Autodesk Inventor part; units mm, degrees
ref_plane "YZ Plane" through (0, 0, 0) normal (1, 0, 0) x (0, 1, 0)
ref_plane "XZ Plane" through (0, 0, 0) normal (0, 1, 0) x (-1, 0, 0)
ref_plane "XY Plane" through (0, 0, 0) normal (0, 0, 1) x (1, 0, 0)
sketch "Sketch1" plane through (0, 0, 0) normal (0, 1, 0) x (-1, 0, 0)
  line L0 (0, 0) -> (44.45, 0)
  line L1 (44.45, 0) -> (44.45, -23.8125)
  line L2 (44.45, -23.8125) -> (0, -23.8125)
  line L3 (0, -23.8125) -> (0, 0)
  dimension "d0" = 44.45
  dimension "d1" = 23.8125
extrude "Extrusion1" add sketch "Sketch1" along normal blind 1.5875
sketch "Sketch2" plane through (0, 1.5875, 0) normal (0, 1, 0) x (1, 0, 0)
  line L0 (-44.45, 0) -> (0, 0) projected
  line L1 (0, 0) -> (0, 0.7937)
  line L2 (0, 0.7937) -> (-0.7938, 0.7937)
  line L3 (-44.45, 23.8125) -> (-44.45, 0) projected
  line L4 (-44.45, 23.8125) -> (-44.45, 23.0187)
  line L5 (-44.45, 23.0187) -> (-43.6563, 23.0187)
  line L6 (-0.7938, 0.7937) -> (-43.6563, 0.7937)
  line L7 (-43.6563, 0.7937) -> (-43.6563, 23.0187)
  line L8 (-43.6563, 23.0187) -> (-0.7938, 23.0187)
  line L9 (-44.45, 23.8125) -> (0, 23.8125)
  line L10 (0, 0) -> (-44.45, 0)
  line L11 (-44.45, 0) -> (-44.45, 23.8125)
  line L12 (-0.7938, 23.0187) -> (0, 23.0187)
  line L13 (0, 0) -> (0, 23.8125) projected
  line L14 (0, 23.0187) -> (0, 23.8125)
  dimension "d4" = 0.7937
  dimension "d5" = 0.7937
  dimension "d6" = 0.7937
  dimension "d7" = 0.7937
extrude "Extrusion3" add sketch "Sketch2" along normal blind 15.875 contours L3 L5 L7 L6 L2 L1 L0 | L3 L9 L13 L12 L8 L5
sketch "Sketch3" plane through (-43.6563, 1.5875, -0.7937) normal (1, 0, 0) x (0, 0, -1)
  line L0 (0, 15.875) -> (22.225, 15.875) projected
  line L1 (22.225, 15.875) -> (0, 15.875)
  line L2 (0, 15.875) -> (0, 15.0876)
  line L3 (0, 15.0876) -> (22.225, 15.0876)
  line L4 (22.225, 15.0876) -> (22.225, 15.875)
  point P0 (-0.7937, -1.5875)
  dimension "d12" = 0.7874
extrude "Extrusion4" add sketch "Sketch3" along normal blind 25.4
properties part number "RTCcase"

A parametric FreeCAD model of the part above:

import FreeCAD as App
import Part
import Sketcher

V = App.Vector
Q = App.Units.Quantity

doc = App.newDocument("Part")
body = doc.addObject("PartDesign::Body", "Body")

# Sketch on XZ plane
sketch1 = body.newObject("Sketcher::SketchObject", "Sketch")
sketch1.AttachmentSupport = (doc.getObject("XZ_Plane"), [""])
sketch1.MapMode = "FlatFace"
sketch1.addGeometry([
    Part.LineSegment(V(-44.45, 0, 0), V(0, 0, 0)),
    Part.LineSegment(V(0, 0, 0), V(0, -23.8125, 0)),
    Part.LineSegment(V(0, -23.8125, 0), V(-44.45, -23.8125, 0)),
    Part.LineSegment(V(-44.45, -23.8125, 0), V(-44.45, 0, 0)),
], False)
sketch1.addConstraint([
    Sketcher.Constraint("Coincident", 0, 2, 1, 1),
    Sketcher.Constraint("Coincident", 1, 2, 2, 1),
    Sketcher.Constraint("Coincident", 2, 2, 3, 1),
    Sketcher.Constraint("Coincident", 3, 2, 0, 1),
    Sketcher.Constraint("Horizontal", 0),
    Sketcher.Constraint("Vertical", 1),
    Sketcher.Constraint("Horizontal", 2),
    Sketcher.Constraint("Vertical", 3),
    Sketcher.Constraint("Coincident", 0, 2, -1, 1),
    Sketcher.Constraint("DistanceX", 0, 1, 0, 2, Q("1.75 in")),
    Sketcher.Constraint("DistanceY", 1, 2, 1, 1, Q("0.9375 in")),
])
pad1 = body.newObject("PartDesign::Pad", "Pad")
pad1.Profile = sketch1
pad1.Length = Q("0.0625 in")
pad1.Reversed = True

# Sketch on XZ plane
sketch2 = body.newObject("Sketcher::SketchObject", "Sketch001")
sketch2.AttachmentSupport = (doc.getObject("XZ_Plane"), [""])
sketch2.MapMode = "FlatFace"
sketch2.AttachmentOffset = App.Placement(V(0, 0, -0.0625 * 25.4), App.Rotation())
sketch2.addGeometry([
    Part.LineSegment(V(-44.45, 0, 0), V(0, 0, 0)),  # 0
    Part.LineSegment(V(0, 0, 0), V(0, -0.7937, 0)),  # 1
    Part.LineSegment(V(0, -0.7937, 0), V(-43.6563, -0.7937, 0)),  # 2
    Part.LineSegment(V(-43.6563, -0.7937, 0), V(-43.6563, -23.0187, 0)),  # 3
    Part.LineSegment(V(-43.6563, -23.0187, 0), V(0, -23.0187, 0)),  # 4
    Part.LineSegment(V(0, -23.0187, 0), V(0, -23.8125, 0)),  # 5
    Part.LineSegment(V(0, -23.8125, 0), V(-44.45, -23.8125, 0)),  # 6
    Part.LineSegment(V(-44.45, -23.8125, 0), V(-44.45, 0, 0)),  # 7
], False)
sketch2.addConstraint([
    Sketcher.Constraint("Coincident", 0, 2, 1, 1),
    Sketcher.Constraint("Coincident", 1, 2, 2, 1),
    Sketcher.Constraint("Coincident", 2, 2, 3, 1),
    Sketcher.Constraint("Coincident", 3, 2, 4, 1),
    Sketcher.Constraint("Coincident", 4, 2, 5, 1),
    Sketcher.Constraint("Coincident", 5, 2, 6, 1),
    Sketcher.Constraint("Coincident", 6, 2, 7, 1),
    Sketcher.Constraint("Coincident", 7, 2, 0, 1),
    Sketcher.Constraint("Horizontal", 0),
    Sketcher.Constraint("Vertical", 1),
    Sketcher.Constraint("Horizontal", 2),
    Sketcher.Constraint("Vertical", 3),
    Sketcher.Constraint("Horizontal", 4),
    Sketcher.Constraint("Vertical", 5),
    Sketcher.Constraint("Horizontal", 6),
    Sketcher.Constraint("Vertical", 7),
    Sketcher.Constraint("Coincident", 0, 2, -1, 1),
    Sketcher.Constraint("PointOnObject", 4, 2, -2),
    Sketcher.Constraint("Equal", 1, 5),
    Sketcher.Constraint("DistanceY", 1, 2, 1, 1, Q("0.031248 in")),
    Sketcher.Constraint("DistanceX", 6, 2, 3, 2, Q("0.031248 in")),
    Sketcher.Constraint("DistanceX", 0, 1, 0, 2, Q("1.75 in")),
    Sketcher.Constraint("DistanceY", 3, 2, 3, 1, Q("0.875 in")),
])
pad2 = body.newObject("PartDesign::Pad", "Pad001")
pad2.Profile = sketch2
pad2.Length = Q("0.625 in")
pad2.Reversed = True

# Sketch on YZ plane
sketch3 = body.newObject("Sketcher::SketchObject", "Sketch002")
sketch3.AttachmentSupport = (doc.getObject("YZ_Plane"), [""])
sketch3.MapMode = "FlatFace"
sketch3.AttachmentOffset = App.Placement(V(0, 0, -1.718752 * 25.4), App.Rotation())
sketch3.addGeometry([
    Part.LineSegment(V(17.4625, -23.0187, 0), V(17.4625, -0.7937, 0)),
    Part.LineSegment(V(17.4625, -0.7937, 0), V(16.6751, -0.7937, 0)),
    Part.LineSegment(V(16.6751, -0.7937, 0), V(16.6751, -23.0187, 0)),
    Part.LineSegment(V(16.6751, -23.0187, 0), V(17.4625, -23.0187, 0)),
], False)
sketch3.addConstraint([
    Sketcher.Constraint("Coincident", 0, 2, 1, 1),
    Sketcher.Constraint("Coincident", 1, 2, 2, 1),
    Sketcher.Constraint("Coincident", 2, 2, 3, 1),
    Sketcher.Constraint("Coincident", 3, 2, 0, 1),
    Sketcher.Constraint("Vertical", 0),
    Sketcher.Constraint("Horizontal", 1),
    Sketcher.Constraint("Vertical", 2),
    Sketcher.Constraint("Horizontal", 3),
    Sketcher.Constraint("DistanceX", 1, 2, 1, 1, Q("0.031 in")),
    Sketcher.Constraint("DistanceY", 0, 1, 0, 2, Q("0.875 in")),
    Sketcher.Constraint("DistanceX", -1, 1, 0, 2, Q("0.6875 in")),
    Sketcher.Constraint("DistanceY", 0, 2, -1, 1, Q("0.031248 in")),
])
pad3 = body.newObject("PartDesign::Pad", "Pad002")
pad3.Profile = sketch3
pad3.Length = Q("1 in")

doc.recompute()
